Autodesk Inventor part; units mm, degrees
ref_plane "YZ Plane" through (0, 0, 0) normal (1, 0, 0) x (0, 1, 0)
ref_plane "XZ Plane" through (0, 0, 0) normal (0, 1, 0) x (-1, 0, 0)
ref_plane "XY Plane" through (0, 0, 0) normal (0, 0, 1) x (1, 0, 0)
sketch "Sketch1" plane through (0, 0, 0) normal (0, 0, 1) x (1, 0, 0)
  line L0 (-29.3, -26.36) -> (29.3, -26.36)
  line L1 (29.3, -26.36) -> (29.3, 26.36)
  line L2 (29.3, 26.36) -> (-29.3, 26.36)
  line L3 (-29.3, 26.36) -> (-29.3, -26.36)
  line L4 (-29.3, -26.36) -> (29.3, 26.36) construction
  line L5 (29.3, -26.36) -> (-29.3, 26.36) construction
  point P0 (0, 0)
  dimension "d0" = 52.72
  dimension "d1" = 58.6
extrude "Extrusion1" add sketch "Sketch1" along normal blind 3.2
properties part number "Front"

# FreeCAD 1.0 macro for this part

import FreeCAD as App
import Part
import Sketcher
from FreeCAD import Vector
Q = App.Units.Quantity


def add_polygon(sketch, points):
    """Adds a closed chain of lines whose ends are joined by coincident constraints."""
    first, n = sketch.GeometryCount, len(points)
    for a, b in zip(points, points[1:] + points[:1]):
        sketch.addGeometry(Part.LineSegment(App.Vector(*a, 0), App.Vector(*b, 0)), False)
    for i in range(n):
        sketch.addConstraint(Sketcher.Constraint("Coincident", first + i, 2, first + (i + 1) % n, 1))

doc = App.newDocument("Part")
body = doc.addObject("PartDesign::Body", "Body")

sketch1 = body.newObject("Sketcher::SketchObject", "Sketch")
sketch1.AttachmentSupport = (doc.getObject("XY_Plane"), [""])
sketch1.MapMode = "FlatFace"
add_polygon(sketch1, [(-29.3, 26.36), (-29.3, -26.36), (29.3, -26.36), (29.3, 26.36)])
sketch1.addConstraint([
    Sketcher.Constraint("Vertical", 0),
    Sketcher.Constraint("Horizontal", 1),
    Sketcher.Constraint("Vertical", 2),
    Sketcher.Constraint("Horizontal", 3),
    Sketcher.Constraint("Symmetric", 0, 2, 2, 2, -1, 1),
    Sketcher.Constraint("DistanceX", 1, 1, 1, 2, Q("58.6 mm")),
    Sketcher.Constraint("DistanceY", 0, 2, 0, 1, Q("52.72 mm")),
])
pad1 = body.newObject("PartDesign::Pad", "Pad")
pad1.Profile = sketch1
pad1.Length = 3.2

doc.recompute()
